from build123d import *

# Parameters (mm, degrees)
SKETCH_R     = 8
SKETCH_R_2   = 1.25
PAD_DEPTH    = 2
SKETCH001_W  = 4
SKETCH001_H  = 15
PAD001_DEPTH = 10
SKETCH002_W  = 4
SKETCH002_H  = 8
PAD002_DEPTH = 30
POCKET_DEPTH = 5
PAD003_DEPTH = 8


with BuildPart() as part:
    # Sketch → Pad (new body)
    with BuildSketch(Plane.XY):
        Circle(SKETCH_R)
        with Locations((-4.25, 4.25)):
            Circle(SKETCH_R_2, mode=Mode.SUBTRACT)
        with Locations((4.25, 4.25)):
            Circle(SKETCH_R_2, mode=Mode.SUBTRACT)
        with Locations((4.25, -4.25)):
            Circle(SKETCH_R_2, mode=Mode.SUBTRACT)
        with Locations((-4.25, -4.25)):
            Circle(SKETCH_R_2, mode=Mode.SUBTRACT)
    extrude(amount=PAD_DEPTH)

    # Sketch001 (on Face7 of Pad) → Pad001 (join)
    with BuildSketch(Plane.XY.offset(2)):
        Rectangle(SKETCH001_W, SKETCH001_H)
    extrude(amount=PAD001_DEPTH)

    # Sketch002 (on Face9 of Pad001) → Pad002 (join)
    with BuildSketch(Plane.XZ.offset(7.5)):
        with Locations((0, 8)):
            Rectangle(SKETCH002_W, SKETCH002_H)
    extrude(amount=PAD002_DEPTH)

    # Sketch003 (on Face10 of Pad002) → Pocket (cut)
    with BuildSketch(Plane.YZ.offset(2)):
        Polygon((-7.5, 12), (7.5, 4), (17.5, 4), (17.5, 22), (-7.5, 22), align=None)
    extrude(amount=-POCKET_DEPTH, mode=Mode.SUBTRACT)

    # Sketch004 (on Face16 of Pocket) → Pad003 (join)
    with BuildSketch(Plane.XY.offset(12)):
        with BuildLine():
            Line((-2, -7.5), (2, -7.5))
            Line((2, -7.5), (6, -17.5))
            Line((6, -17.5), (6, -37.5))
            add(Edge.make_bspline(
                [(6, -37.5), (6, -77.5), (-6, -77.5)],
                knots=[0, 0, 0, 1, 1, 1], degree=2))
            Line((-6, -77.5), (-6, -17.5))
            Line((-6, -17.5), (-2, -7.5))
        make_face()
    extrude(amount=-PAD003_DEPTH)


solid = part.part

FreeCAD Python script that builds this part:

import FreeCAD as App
import Part
import Sketcher
from FreeCAD import Vector
Q = App.Units.Quantity

doc = App.newDocument("Part")
body = doc.addObject("PartDesign::Body", "Body")

# Sketch on XY plane
sketch1 = doc.addObject("Sketcher::SketchObject", "Sketch")
body.addObject(sketch1)
sketch1.AttachmentSupport = (doc.XY_Plane, [""])
sketch1.MapMode = "FlatFace"
sketch1.addGeometry([
    Part.Circle(Vector(0, 0, 0), Vector(0, 0, 1), 8),  # 0
    Part.Circle(Vector(-4.25, -4.25, 0), Vector(0, 0, 1), 1.25),  # 1
    Part.Circle(Vector(4.25, -4.25, 0), Vector(0, 0, 1), 1.25),  # 2
    Part.Circle(Vector(-4.25, 4.25, 0), Vector(0, 0, 1), 1.25),  # 3
    Part.Circle(Vector(4.25, 4.25, 0), Vector(0, 0, 1), 1.25),  # 4
], False)
sketch1.addConstraint([
    Sketcher.Constraint("Coincident", 0, 3, -1, 1),
    Sketcher.Constraint("Equal", 1, 2),
    Sketcher.Constraint("Equal", 2, 3),
    Sketcher.Constraint("Equal", 3, 4),
    Sketcher.Constraint("Symmetric", 2, 3, 3, 3, -1, 1),
    Sketcher.Constraint("Symmetric", 1, 3, 4, 3, -1, 1),
    Sketcher.Constraint("Symmetric", 1, 3, 2, 3, -2),
    Sketcher.Constraint("Diameter", 0, Q("16 mm")),
    Sketcher.Constraint("Diameter", 1, Q("2.5 mm")),
    Sketcher.Constraint("DistanceX", 1, 3, 2, 3, Q("8.5 mm")),
    Sketcher.Constraint("DistanceY", 1, 3, 3, 3, Q("8.5 mm")),
])
pad1 = doc.addObject("PartDesign::Pad", "Pad")
body.addObject(pad1)
pad1.Profile = sketch1
pad1.Length = 2

# Sketch on XY plane
sketch2 = doc.addObject("Sketcher::SketchObject", "Sketch001")
body.addObject(sketch2)
sketch2.AttachmentSupport = (doc.XY_Plane, [""])
sketch2.MapMode = "FlatFace"
sketch2.AttachmentOffset = App.Placement(Vector(0, 0, 2), App.Rotation())
sketch2.addGeometry([
    Part.LineSegment(Vector(-2, 7.5, 0), Vector(-2, -7.5, 0)),
    Part.LineSegment(Vector(-2, -7.5, 0), Vector(2, -7.5, 0)),
    Part.LineSegment(Vector(2, -7.5, 0), Vector(2, 7.5, 0)),
    Part.LineSegment(Vector(2, 7.5, 0), Vector(-2, 7.5, 0)),
], False)
sketch2.addConstraint([
    Sketcher.Constraint("Coincident", 0, 2, 1, 1),
    Sketcher.Constraint("Coincident", 1, 2, 2, 1),
    Sketcher.Constraint("Coincident", 2, 2, 3, 1),
    Sketcher.Constraint("Coincident", 3, 2, 0, 1),
    Sketcher.Constraint("Vertical", 0),
    Sketcher.Constraint("Horizontal", 1),
    Sketcher.Constraint("Vertical", 2),
    Sketcher.Constraint("Horizontal", 3),
    Sketcher.Constraint("Symmetric", 0, 2, 2, 2, -1, 1),
    Sketcher.Constraint("DistanceX", 1, 1, 1, 2, Q("4 mm")),
    Sketcher.Constraint("DistanceY", 0, 2, 0, 1, Q("15 mm")),
])
pad2 = doc.addObject("PartDesign::Pad", "Pad001")
body.addObject(pad2)
pad2.Profile = sketch2
pad2.Length = 10

# Sketch on XZ plane
sketch3 = doc.addObject("Sketcher::SketchObject", "Sketch002")
body.addObject(sketch3)
sketch3.AttachmentSupport = (doc.XZ_Plane, [""])
sketch3.MapMode = "FlatFace"
sketch3.AttachmentOffset = App.Placement(Vector(0, 0, 7.5), App.Rotation())
sketch3.addGeometry([
    Part.LineSegment(Vector(-2, 12, 0), Vector(-2, 4, 0)),
    Part.LineSegment(Vector(-2, 4, 0), Vector(2, 4, 0)),
    Part.LineSegment(Vector(2, 4, 0), Vector(2, 12, 0)),
    Part.LineSegment(Vector(2, 12, 0), Vector(-2, 12, 0)),
], False)
sketch3.addConstraint([
    Sketcher.Constraint("Coincident", 0, 2, 1, 1),
    Sketcher.Constraint("Coincident", 1, 2, 2, 1),
    Sketcher.Constraint("Coincident", 2, 2, 3, 1),
    Sketcher.Constraint("Coincident", 3, 2, 0, 1),
    Sketcher.Constraint("Vertical", 0),
    Sketcher.Constraint("Horizontal", 1),
    Sketcher.Constraint("Vertical", 2),
    Sketcher.Constraint("Horizontal", 3),
    Sketcher.Constraint("DistanceX", 1, 1, 1, 2, Q("4 mm")),
    Sketcher.Constraint("DistanceY", 0, 2, 0, 1, Q("8 mm")),
    Sketcher.Constraint("DistanceX", 0, 2, -1, 1, Q("2 mm")),
    Sketcher.Constraint("DistanceY", -1, 1, 0, 2, Q("4 mm")),
])
pad3 = doc.addObject("PartDesign::Pad", "Pad002")
body.addObject(pad3)
pad3.Profile = sketch3
pad3.Length = 30

# Sketch on YZ plane
sketch4 = doc.addObject("Sketcher::SketchObject", "Sketch003")
body.addObject(sketch4)
sketch4.AttachmentSupport = (doc.YZ_Plane, [""])
sketch4.MapMode = "FlatFace"
sketch4.AttachmentOffset = App.Placement(Vector(0, 0, 2), App.Rotation())
sketch4.addGeometry([
    Part.LineSegment(Vector(-7.5, 12, 0), Vector(7.5, 4, 0)),  # 0
    Part.LineSegment(Vector(7.5, 4, 0), Vector(17.5, 4, 0)),  # 1
    Part.LineSegment(Vector(17.5, 4, 0), Vector(17.5, 22, 0)),  # 2
    Part.LineSegment(Vector(17.5, 22, 0), Vector(-7.5, 22, 0)),  # 3
    Part.LineSegment(Vector(-7.5, 22, 0), Vector(-7.5, 12, 0)),  # 4
], False)
sketch4.addConstraint([
    Sketcher.Constraint("Coincident", 0, 2, 1, 1),
    Sketcher.Constraint("Coincident", 1, 2, 2, 1),
    Sketcher.Constraint("Coincident", 2, 2, 3, 1),
    Sketcher.Constraint("Coincident", 3, 2, 4, 1),
    Sketcher.Constraint("Coincident", 4, 2, 0, 1),
    Sketcher.Constraint("Horizontal", 1),
    Sketcher.Constraint("Vertical", 2),
    Sketcher.Constraint("Horizontal", 3),
    Sketcher.Constraint("Vertical", 4),
    Sketcher.Constraint("Equal", 1, 4),
    Sketcher.Constraint("DistanceX", 1, 1, 1, 2, Q("10 mm")),
    Sketcher.Constraint("DistanceX", 3, 2, 3, 1, Q("25 mm")),
    Sketcher.Constraint("DistanceY", 2, 1, 2, 2, Q("18 mm")),
    Sketcher.Constraint("DistanceY", -1, 1, 0, 2, Q("4 mm")),
    Sketcher.Constraint("DistanceX", -1, 1, 0, 2, Q("7.5 mm")),
])
pocket1 = doc.addObject("PartDesign::Pocket", "Pocket")
body.addObject(pocket1)
pocket1.Profile = sketch4
pocket1.Length = 5

# Sketch on XY plane
sketch5 = doc.addObject("Sketcher::SketchObject", "Sketch004")
body.addObject(sketch5)
sketch5.AttachmentSupport = (doc.XY_Plane, [""])
sketch5.MapMode = "FlatFace"
sketch5.AttachmentOffset = App.Placement(Vector(0, 0, 12), App.Rotation())
sketch5.addGeometry([
    Part.LineSegment(Vector(2, -7.5, 0), Vector(-2, -7.5, 0)),  # 0
    Part.LineSegment(Vector(-2, -7.5, 0), Vector(-6, -17.5, 0)),  # 1
    Part.LineSegment(Vector(-6, -17.5, 0), Vector(-6, -77.5, 0)),  # 2
    Part.BSplineCurve([Vector(6, -37.5, 0), Vector(6, -77.5, 0), Vector(-6, -77.5, 0)], [3, 3], [0, 1], False, 2, [1, 1, 1], False),  # 3
    Part.LineSegment(Vector(6, -37.5, 0), Vector(6, -17.5, 0)),  # 4
    Part.LineSegment(Vector(6, -17.5, 0), Vector(2, -7.5, 0)),  # 5
], False)
sketch5.addConstraint([
    Sketcher.Constraint("Block", 3),
    Sketcher.Constraint("Coincident", 0, 2, 1, 1),
    Sketcher.Constraint("Coincident", 1, 2, 2, 1),
    Sketcher.Constraint("Coincident", 2, 2, 3, 2),
    Sketcher.Constraint("Coincident", 3, 1, 4, 1),
    Sketcher.Constraint("Coincident", 4, 2, 5, 1),
    Sketcher.Constraint("Coincident", 5, 2, 0, 1),
    Sketcher.Constraint("Horizontal", 0),
    Sketcher.Constraint("Vertical", 2),
    Sketcher.Constraint("Vertical", 4),
    Sketcher.Constraint("DistanceX", 0, 2, 0, 1, Q("4 mm")),
    Sketcher.Constraint("DistanceY", 2, 2, 2, 1, Q("60 mm")),
    Sketcher.Constraint("DistanceY", 4, 1, 4, 2, Q("20 mm")),
    Sketcher.Constraint("DistanceX", 0, 2, -1, 1, Q("2 mm")),
    Sketcher.Constraint("DistanceY", 1, 2, 0, 2, Q("10 mm")),
])
pad4 = doc.addObject("PartDesign::Pad", "Pad003")
body.addObject(pad4)
pad4.Profile = sketch5
pad4.Length = 8
pad4.Reversed = True

doc.recompute()
